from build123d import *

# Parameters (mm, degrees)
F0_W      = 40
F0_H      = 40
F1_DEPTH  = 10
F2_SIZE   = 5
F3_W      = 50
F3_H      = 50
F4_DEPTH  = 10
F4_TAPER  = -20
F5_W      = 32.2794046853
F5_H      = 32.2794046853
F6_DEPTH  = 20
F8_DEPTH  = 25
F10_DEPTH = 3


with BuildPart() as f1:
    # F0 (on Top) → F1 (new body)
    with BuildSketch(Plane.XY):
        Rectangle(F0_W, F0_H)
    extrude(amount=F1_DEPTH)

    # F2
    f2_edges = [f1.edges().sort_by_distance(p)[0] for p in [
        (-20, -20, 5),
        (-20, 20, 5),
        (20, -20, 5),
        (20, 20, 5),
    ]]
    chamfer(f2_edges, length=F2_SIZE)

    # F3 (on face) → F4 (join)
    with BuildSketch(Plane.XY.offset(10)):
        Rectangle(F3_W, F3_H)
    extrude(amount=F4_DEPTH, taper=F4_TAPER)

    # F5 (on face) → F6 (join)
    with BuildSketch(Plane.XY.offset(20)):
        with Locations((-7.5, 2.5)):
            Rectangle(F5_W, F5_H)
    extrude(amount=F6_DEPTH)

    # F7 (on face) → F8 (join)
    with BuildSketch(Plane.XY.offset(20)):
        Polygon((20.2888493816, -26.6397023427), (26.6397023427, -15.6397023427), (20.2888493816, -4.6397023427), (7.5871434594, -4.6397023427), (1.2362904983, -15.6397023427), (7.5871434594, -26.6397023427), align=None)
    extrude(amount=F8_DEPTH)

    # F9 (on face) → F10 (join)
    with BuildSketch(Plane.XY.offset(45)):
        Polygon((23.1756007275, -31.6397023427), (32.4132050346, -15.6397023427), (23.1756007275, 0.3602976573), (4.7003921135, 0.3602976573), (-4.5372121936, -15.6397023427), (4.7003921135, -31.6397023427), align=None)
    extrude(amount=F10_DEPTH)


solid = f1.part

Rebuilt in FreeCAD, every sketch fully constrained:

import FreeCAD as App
import Part
import Sketcher

V = App.Vector
Q = App.Units.Quantity


def edges_at(feature, points):
    """Names of the edges that pass closest to the given points."""
    edges = feature.Shape.Edges
    near = lambda p: min(range(len(edges)), key=lambda i: edges[i].distToShape(Part.Vertex(*p))[0])
    return sorted({f"Edge{near(p) + 1}" for p in points})

doc = App.newDocument("Part")
body = doc.addObject("PartDesign::Body", "Body")

# Sketch on XY plane
sketch1 = doc.addObject("Sketcher::SketchObject", "Sketch")
body.addObject(sketch1)
sketch1.AttachmentSupport = (doc.XY_Plane, [""])
sketch1.MapMode = "FlatFace"
sketch1.addGeometry(Part.LineSegment(V(-20, 20, 0), V(-20, -20, 0)), False)
sketch1.addGeometry(Part.LineSegment(V(-20, -20, 0), V(20, -20, 0)), False)
sketch1.addGeometry(Part.LineSegment(V(20, -20, 0), V(20, 20, 0)), False)
sketch1.addGeometry(Part.LineSegment(V(20, 20, 0), V(-20, 20, 0)), False)
sketch1.addConstraint(Sketcher.Constraint("Coincident", 0, 2, 1, 1))
sketch1.addConstraint(Sketcher.Constraint("Coincident", 1, 2, 2, 1))
sketch1.addConstraint(Sketcher.Constraint("Coincident", 2, 2, 3, 1))
sketch1.addConstraint(Sketcher.Constraint("Coincident", 3, 2, 0, 1))
sketch1.addConstraint(Sketcher.Constraint("Vertical", 0))
sketch1.addConstraint(Sketcher.Constraint("Horizontal", 1))
sketch1.addConstraint(Sketcher.Constraint("Vertical", 2))
sketch1.addConstraint(Sketcher.Constraint("Horizontal", 3))
sketch1.addConstraint(Sketcher.Constraint("Symmetric", 0, 2, 2, 2, -1, 1))
sketch1.addConstraint(Sketcher.Constraint("Equal", 3, 0))
sketch1.addConstraint(Sketcher.Constraint("DistanceX", 1, 1, 1, 2, 40.0))
pad1 = doc.addObject("PartDesign::Pad", "Pad")
body.addObject(pad1)
pad1.Profile = sketch1
pad1.Length = 10
doc.recompute()

chamfer = doc.addObject("PartDesign::Chamfer", "Chamfer")
body.addObject(chamfer)
chamfer.Base = (pad1, edges_at(pad1, [
    (-20, -20, 5),
    (-20, 20, 5),
    (20, -20, 5),
    (20, 20, 5),
]))
chamfer.Size = 5

# Sketch on XY plane
sketch2 = doc.addObject("Sketcher::SketchObject", "Sketch001")
body.addObject(sketch2)
sketch2.AttachmentSupport = (doc.XY_Plane, [""])
sketch2.MapMode = "FlatFace"
sketch2.AttachmentOffset = App.Placement(V(0, 0, 10), App.Rotation())
sketch2.addGeometry(Part.LineSegment(V(-25, 25, 0), V(-25, -25, 0)), False)
sketch2.addGeometry(Part.LineSegment(V(-25, -25, 0), V(25, -25, 0)), False)
sketch2.addGeometry(Part.LineSegment(V(25, -25, 0), V(25, 25, 0)), False)
sketch2.addGeometry(Part.LineSegment(V(25, 25, 0), V(-25, 25, 0)), False)
sketch2.addConstraint(Sketcher.Constraint("Coincident", 0, 2, 1, 1))
sketch2.addConstraint(Sketcher.Constraint("Coincident", 1, 2, 2, 1))
sketch2.addConstraint(Sketcher.Constraint("Coincident", 2, 2, 3, 1))
sketch2.addConstraint(Sketcher.Constraint("Coincident", 3, 2, 0, 1))
sketch2.addConstraint(Sketcher.Constraint("Vertical", 0))
sketch2.addConstraint(Sketcher.Constraint("Horizontal", 1))
sketch2.addConstraint(Sketcher.Constraint("Vertical", 2))
sketch2.addConstraint(Sketcher.Constraint("Horizontal", 3))
sketch2.addConstraint(Sketcher.Constraint("Symmetric", 0, 2, 2, 2, -1, 1))
sketch2.addConstraint(Sketcher.Constraint("Equal", 3, 0))
sketch2.addConstraint(Sketcher.Constraint("DistanceX", 1, 1, 1, 2, 50.0))
pad2 = doc.addObject("PartDesign::Pad", "Pad001")
body.addObject(pad2)
pad2.Profile = sketch2
pad2.Length = 10
pad2.TaperAngle = 20

# Sketch on XY plane
sketch3 = doc.addObject("Sketcher::SketchObject", "Sketch002")
body.addObject(sketch3)
sketch3.AttachmentSupport = (doc.XY_Plane, [""])
sketch3.MapMode = "FlatFace"
sketch3.AttachmentOffset = App.Placement(V(0, 0, 20), App.Rotation())
sketch3.addGeometry(Part.LineSegment(V(-24, 19, 0), V(-24, -14, 0)), False)
sketch3.addGeometry(Part.LineSegment(V(-24, -14, 0), V(9, -14, 0)), False)
sketch3.addGeometry(Part.LineSegment(V(9, -14, 0), V(9, 19, 0)), False)
sketch3.addGeometry(Part.LineSegment(V(9, 19, 0), V(-24, 19, 0)), False)
sketch3.addConstraint(Sketcher.Constraint("Coincident", 0, 2, 1, 1))
sketch3.addConstraint(Sketcher.Constraint("Coincident", 1, 2, 2, 1))
sketch3.addConstraint(Sketcher.Constraint("Coincident", 2, 2, 3, 1))
sketch3.addConstraint(Sketcher.Constraint("Coincident", 3, 2, 0, 1))
sketch3.addConstraint(Sketcher.Constraint("Vertical", 0))
sketch3.addConstraint(Sketcher.Constraint("Horizontal", 1))
sketch3.addConstraint(Sketcher.Constraint("Vertical", 2))
sketch3.addConstraint(Sketcher.Constraint("Horizontal", 3))
sketch3.addConstraint(Sketcher.Constraint("Equal", 3, 0))
sketch3.addConstraint(Sketcher.Constraint("DistanceX", 1, 1, 1, 2, 32.279405))
sketch3.addConstraint(Sketcher.Constraint("DistanceX", 0, 2, -1, 1, 23.639702))
sketch3.addConstraint(Sketcher.Constraint("DistanceY", 0, 2, -1, 1, 13.639702))
pad3 = doc.addObject("PartDesign::Pad", "Pad002")
body.addObject(pad3)
pad3.Profile = sketch3
pad3.Length = 20

# Sketch on XY plane
sketch4 = doc.addObject("Sketcher::SketchObject", "Sketch003")
body.addObject(sketch4)
sketch4.AttachmentSupport = (doc.XY_Plane, [""])
sketch4.MapMode = "FlatFace"
sketch4.AttachmentOffset = App.Placement(V(0, 0, 20), App.Rotation())
sketch4.addGeometry(Part.LineSegment(V(20, -27, 0), V(27, -16, 0)), False)
sketch4.addGeometry(Part.LineSegment(V(27, -16, 0), V(20, -5, 0)), False)
sketch4.addGeometry(Part.LineSegment(V(20, -5, 0), V(8, -5, 0)), False)
sketch4.addGeometry(Part.LineSegment(V(8, -5, 0), V(1, -16, 0)), False)
sketch4.addGeometry(Part.LineSegment(V(1, -16, 0), V(8, -27, 0)), False)
sketch4.addGeometry(Part.LineSegment(V(8, -27, 0), V(20, -27, 0)), False)
sketch4.addConstraint(Sketcher.Constraint("Coincident", 0, 2, 1, 1))
sketch4.addConstraint(Sketcher.Constraint("Coincident", 1, 2, 2, 1))
sketch4.addConstraint(Sketcher.Constraint("Coincident", 2, 2, 3, 1))
sketch4.addConstraint(Sketcher.Constraint("Coincident", 3, 2, 4, 1))
sketch4.addConstraint(Sketcher.Constraint("Coincident", 4, 2, 5, 1))
sketch4.addConstraint(Sketcher.Constraint("Coincident", 5, 2, 0, 1))
sketch4.addConstraint(Sketcher.Constraint("Horizontal", 2))
sketch4.addConstraint(Sketcher.Constraint("Horizontal", 5))
sketch4.addConstraint(Sketcher.Constraint("Parallel", 0, 3))
sketch4.addConstraint(Sketcher.Constraint("Parallel", 1, 4))
sketch4.addConstraint(Sketcher.Constraint("Horizontal", 0, 2, 3, 2))
sketch4.addConstraint(Sketcher.Constraint("Vertical", 2, 2, 4, 2))
sketch4.addConstraint(Sketcher.Constraint("Vertical", 1, 2, 5, 2))
sketch4.addConstraint(Sketcher.Constraint("Angle", 0, Q("60 deg")))
sketch4.addConstraint(Sketcher.Constraint("DistanceY", 0, 2, 1, 2, 11.0))
sketch4.addConstraint(Sketcher.Constraint("DistanceX", 2, 2, 2, 1, 12.701706))
sketch4.addConstraint(Sketcher.Constraint("DistanceX", -1, 1, 1, 2, 20.288849))
sketch4.addConstraint(Sketcher.Constraint("DistanceY", 0, 2, -1, 1, 15.639702))
pad4 = doc.addObject("PartDesign::Pad", "Pad003")
body.addObject(pad4)
pad4.Profile = sketch4
pad4.Length = 25

# Sketch on XY plane
sketch5 = doc.addObject("Sketcher::SketchObject", "Sketch004")
body.addObject(sketch5)
sketch5.AttachmentSupport = (doc.XY_Plane, [""])
sketch5.MapMode = "FlatFace"
sketch5.AttachmentOffset = App.Placement(V(0, 0, 45), App.Rotation())
sketch5.addGeometry(Part.LineSegment(V(23, -32, 0), V(32, -16, 0)), False)
sketch5.addGeometry(Part.LineSegment(V(32, -16, 0), V(23, 0, 0)), False)
sketch5.addGeometry(Part.LineSegment(V(23, 0, 0), V(5, 0, 0)), False)
sketch5.addGeometry(Part.LineSegment(V(5, 0, 0), V(-5, -16, 0)), False)
sketch5.addGeometry(Part.LineSegment(V(-5, -16, 0), V(5, -32, 0)), False)
sketch5.addGeometry(Part.LineSegment(V(5, -32, 0), V(23, -32, 0)), False)
sketch5.addConstraint(Sketcher.Constraint("Coincident", 0, 2, 1, 1))
sketch5.addConstraint(Sketcher.Constraint("Coincident", 1, 2, 2, 1))
sketch5.addConstraint(Sketcher.Constraint("Coincident", 2, 2, 3, 1))
sketch5.addConstraint(Sketcher.Constraint("Coincident", 3, 2, 4, 1))
sketch5.addConstraint(Sketcher.Constraint("Coincident", 4, 2, 5, 1))
sketch5.addConstraint(Sketcher.Constraint("Coincident", 5, 2, 0, 1))
sketch5.addConstraint(Sketcher.Constraint("Horizontal", 2))
sketch5.addConstraint(Sketcher.Constraint("Horizontal", 5))
sketch5.addConstraint(Sketcher.Constraint("Parallel", 0, 3))
sketch5.addConstraint(Sketcher.Constraint("Parallel", 1, 4))
sketch5.addConstraint(Sketcher.Constraint("Horizontal", 0, 2, 3, 2))
sketch5.addConstraint(Sketcher.Constraint("Vertical", 2, 2, 4, 2))
sketch5.addConstraint(Sketcher.Constraint("Vertical", 1, 2, 5, 2))
sketch5.addConstraint(Sketcher.Constraint("Angle", 0, Q("60 deg")))
sketch5.addConstraint(Sketcher.Constraint("DistanceY", 0, 2, 1, 2, 16.0))
sketch5.addConstraint(Sketcher.Constraint("DistanceX", 2, 2, 2, 1, 18.475209))
sketch5.addConstraint(Sketcher.Constraint("DistanceX", -1, 1, 1, 2, 23.175601))
sketch5.addConstraint(Sketcher.Constraint("DistanceY", 0, 2, -1, 1, 15.639702))
pad5 = doc.addObject("PartDesign::Pad", "Pad004")
body.addObject(pad5)
pad5.Profile = sketch5
pad5.Length = 3

doc.recompute()
